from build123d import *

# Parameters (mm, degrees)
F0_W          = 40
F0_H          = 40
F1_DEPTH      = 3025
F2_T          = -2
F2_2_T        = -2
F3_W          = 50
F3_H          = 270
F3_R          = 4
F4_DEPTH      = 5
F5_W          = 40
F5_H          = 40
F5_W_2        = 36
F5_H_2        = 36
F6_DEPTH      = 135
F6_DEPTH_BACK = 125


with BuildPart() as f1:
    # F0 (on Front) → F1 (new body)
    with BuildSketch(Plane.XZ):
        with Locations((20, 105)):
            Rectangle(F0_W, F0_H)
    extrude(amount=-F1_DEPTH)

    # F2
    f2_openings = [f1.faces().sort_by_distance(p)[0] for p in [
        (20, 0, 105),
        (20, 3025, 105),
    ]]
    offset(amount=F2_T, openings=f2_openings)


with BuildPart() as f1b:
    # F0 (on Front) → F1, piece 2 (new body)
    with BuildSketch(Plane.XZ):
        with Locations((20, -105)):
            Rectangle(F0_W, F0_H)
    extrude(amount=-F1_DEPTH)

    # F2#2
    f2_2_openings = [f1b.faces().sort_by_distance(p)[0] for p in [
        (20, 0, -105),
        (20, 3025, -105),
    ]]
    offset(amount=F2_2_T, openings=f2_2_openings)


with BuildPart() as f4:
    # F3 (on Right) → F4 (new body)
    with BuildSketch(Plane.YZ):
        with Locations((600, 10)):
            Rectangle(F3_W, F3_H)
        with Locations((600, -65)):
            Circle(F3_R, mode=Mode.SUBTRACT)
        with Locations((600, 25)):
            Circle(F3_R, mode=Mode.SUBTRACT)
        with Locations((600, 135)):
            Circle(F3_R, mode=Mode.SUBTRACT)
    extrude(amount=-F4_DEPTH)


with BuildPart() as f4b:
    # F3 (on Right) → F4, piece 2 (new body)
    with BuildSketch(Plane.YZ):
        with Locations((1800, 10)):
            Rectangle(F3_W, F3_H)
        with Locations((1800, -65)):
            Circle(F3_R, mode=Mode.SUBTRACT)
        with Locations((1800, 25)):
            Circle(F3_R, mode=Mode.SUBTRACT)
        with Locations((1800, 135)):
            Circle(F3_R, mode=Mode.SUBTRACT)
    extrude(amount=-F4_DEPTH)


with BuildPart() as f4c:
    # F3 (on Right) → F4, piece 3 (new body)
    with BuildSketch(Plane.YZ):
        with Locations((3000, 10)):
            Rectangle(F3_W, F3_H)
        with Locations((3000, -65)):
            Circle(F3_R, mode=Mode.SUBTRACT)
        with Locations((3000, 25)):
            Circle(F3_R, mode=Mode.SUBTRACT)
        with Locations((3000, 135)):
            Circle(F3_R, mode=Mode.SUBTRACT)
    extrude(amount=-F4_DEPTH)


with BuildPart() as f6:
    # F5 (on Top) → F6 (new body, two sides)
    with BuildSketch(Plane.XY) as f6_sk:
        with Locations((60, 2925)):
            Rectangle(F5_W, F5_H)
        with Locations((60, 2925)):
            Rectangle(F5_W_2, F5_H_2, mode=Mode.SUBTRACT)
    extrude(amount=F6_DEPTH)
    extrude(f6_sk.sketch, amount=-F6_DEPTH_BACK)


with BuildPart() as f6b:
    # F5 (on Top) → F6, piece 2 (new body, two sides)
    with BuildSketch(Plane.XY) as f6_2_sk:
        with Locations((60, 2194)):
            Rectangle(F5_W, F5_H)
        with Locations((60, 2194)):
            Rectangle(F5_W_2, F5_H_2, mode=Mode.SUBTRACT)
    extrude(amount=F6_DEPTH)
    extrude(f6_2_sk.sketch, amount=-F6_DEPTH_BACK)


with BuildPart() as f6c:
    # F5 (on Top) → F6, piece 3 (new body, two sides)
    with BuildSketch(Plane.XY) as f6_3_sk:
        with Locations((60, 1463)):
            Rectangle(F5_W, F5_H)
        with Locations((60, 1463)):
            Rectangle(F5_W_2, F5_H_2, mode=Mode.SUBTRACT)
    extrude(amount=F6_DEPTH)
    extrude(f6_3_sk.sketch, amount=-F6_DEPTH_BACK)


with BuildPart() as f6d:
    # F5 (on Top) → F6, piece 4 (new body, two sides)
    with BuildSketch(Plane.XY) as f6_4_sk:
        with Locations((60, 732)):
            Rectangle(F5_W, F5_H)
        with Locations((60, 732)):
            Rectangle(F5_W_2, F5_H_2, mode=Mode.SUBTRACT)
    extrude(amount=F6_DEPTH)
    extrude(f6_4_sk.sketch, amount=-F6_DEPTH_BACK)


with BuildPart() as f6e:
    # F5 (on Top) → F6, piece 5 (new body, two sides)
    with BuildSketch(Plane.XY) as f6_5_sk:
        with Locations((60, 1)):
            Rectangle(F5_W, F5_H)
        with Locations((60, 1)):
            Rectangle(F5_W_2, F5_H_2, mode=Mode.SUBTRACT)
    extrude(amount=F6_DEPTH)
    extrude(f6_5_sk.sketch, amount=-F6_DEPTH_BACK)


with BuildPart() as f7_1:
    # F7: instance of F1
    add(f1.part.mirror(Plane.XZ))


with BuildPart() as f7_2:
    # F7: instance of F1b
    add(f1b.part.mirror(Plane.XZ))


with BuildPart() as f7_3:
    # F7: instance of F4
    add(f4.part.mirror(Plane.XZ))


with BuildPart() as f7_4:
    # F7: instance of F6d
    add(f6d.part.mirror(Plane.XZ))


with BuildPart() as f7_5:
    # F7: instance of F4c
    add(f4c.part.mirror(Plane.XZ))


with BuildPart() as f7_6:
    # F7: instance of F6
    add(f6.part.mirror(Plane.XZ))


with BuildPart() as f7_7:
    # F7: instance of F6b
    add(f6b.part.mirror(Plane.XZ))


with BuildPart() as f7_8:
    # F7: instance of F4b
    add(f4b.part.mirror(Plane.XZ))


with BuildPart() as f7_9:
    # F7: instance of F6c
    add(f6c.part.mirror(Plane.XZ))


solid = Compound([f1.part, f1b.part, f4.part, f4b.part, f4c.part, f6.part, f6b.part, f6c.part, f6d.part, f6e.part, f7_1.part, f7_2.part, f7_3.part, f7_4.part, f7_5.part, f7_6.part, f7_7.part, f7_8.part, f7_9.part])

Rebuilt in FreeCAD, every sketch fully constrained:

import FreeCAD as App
import Part
import Sketcher


def faces_at(feature, points):
    """Names of the faces that lie closest to the given points."""
    faces = feature.Shape.Faces
    near = lambda p: min(range(len(faces)), key=lambda i: faces[i].distToShape(Part.Vertex(*p))[0])
    return sorted({f"Face{near(p) + 1}" for p in points})


def add_polygon(sketch, points):
    """Adds a closed chain of lines whose ends are joined by coincident constraints."""
    first, n = sketch.GeometryCount, len(points)
    for a, b in zip(points, points[1:] + points[:1]):
        sketch.addGeometry(Part.LineSegment(App.Vector(*a, 0), App.Vector(*b, 0)), False)
    for i in range(n):
        sketch.addConstraint(Sketcher.Constraint("Coincident", first + i, 2, first + (i + 1) % n, 1))

doc = App.newDocument("Part")
params = doc.addObject("Spreadsheet::Sheet", "Params")
for row, (alias, value) in enumerate([
    ("sketch1_width", "40 mm"),
    ("pad1_length", "3025 mm"),
    ("thickness_wall", "2 mm"),
    ("sketch2_width", "40 mm"),
    ("pad2_length", "3025 mm"),
    ("thickness2_wall", "2 mm"),
    ("sketch3_diameter", "8 mm"),
    ("sketch3_width", "50 mm"),
    ("sketch3_height", "270 mm"),
    ("pad3_length", "5 mm"),
    ("sketch4_diameter", "8 mm"),
    ("sketch4_width", "50 mm"),
    ("sketch4_height", "270 mm"),
    ("pad4_length", "5 mm"),
    ("sketch5_diameter", "8 mm"),
    ("sketch5_width", "50 mm"),
    ("sketch5_height", "270 mm"),
    ("pad5_length", "5 mm"),
    ("sketch6_width", "40 mm"),
    ("sketch6_width2", "36 mm"),
    ("pad6_length", "135 mm"),
    ("pad6_length2", "125 mm"),
    ("sketch7_width", "40 mm"),
    ("sketch7_width2", "36 mm"),
    ("pad7_length", "135 mm"),
    ("pad7_length2", "125 mm"),
    ("sketch8_width", "40 mm"),
    ("sketch8_width2", "36 mm"),
    ("pad8_length", "135 mm"),
    ("pad8_length2", "125 mm"),
    ("sketch9_width", "40 mm"),
    ("sketch9_width2", "36 mm"),
    ("pad9_length", "135 mm"),
    ("pad9_length2", "125 mm"),
    ("sketch10_width", "40 mm"),
    ("sketch10_width2", "36 mm"),
    ("pad10_length", "135 mm"),
    ("pad10_length2", "125 mm"),
], start=1):
    params.set(f"A{row}", alias)
    params.set(f"B{row}", "=" + value)
    params.setAlias(f"B{row}", alias)

body = doc.addObject("PartDesign::Body", "Body")

sketch1 = doc.addObject("Sketcher::SketchObject", "Sketch")
body.addObject(sketch1)
sketch1.AttachmentSupport = (doc.XZ_Plane, [""])
sketch1.MapMode = "FlatFace"
add_polygon(sketch1, [(0, 125), (0, 85), (40, 85), (40, 125)])
sketch1.addConstraint(Sketcher.Constraint("Vertical", 0))
sketch1.addConstraint(Sketcher.Constraint("Horizontal", 1))
sketch1.addConstraint(Sketcher.Constraint("Vertical", 2))
sketch1.addConstraint(Sketcher.Constraint("Horizontal", 3))
sketch1.addConstraint(Sketcher.Constraint("PointOnObject", 0, 2, -2))
sketch1.addConstraint(Sketcher.Constraint("Equal", 3, 0))
sketch1.addConstraint(Sketcher.Constraint("DistanceX", 1, 1, 1, 2, 40.0))
sketch1.addConstraint(Sketcher.Constraint("DistanceY", -1, 1, 0, 2, 85.0))
sketch1.setExpression("Constraints[10]", "Params.sketch1_width")
pad1 = doc.addObject("PartDesign::Pad", "Pad")
body.addObject(pad1)
pad1.Profile = sketch1
pad1.setExpression("Length", "Params.pad1_length")
pad1.Reversed = True
doc.recompute()

thickness = doc.addObject("PartDesign::Thickness", "Thickness")
body.addObject(thickness)
thickness.Base = (pad1, faces_at(pad1, [(20, 0, 105), (20, 3025, 105)]))
thickness.setExpression("Value", "Params.thickness_wall")
thickness.Reversed = True
thickness.Join = "Arc"
body2 = doc.addObject("PartDesign::Body", "Body001")

sketch2 = doc.addObject("Sketcher::SketchObject", "Sketch001")
body2.addObject(sketch2)
sketch2.AttachmentSupport = (doc.getObject("XZ_Plane001"), [""])
sketch2.MapMode = "FlatFace"
add_polygon(sketch2, [(0, -85), (0, -125), (40, -125), (40, -85)])
sketch2.addConstraint(Sketcher.Constraint("Vertical", 0))
sketch2.addConstraint(Sketcher.Constraint("Horizontal", 1))
sketch2.addConstraint(Sketcher.Constraint("Vertical", 2))
sketch2.addConstraint(Sketcher.Constraint("Horizontal", 3))
sketch2.addConstraint(Sketcher.Constraint("PointOnObject", 0, 2, -2))
sketch2.addConstraint(Sketcher.Constraint("Equal", 3, 0))
sketch2.addConstraint(Sketcher.Constraint("DistanceX", 1, 1, 1, 2, 40.0))
sketch2.addConstraint(Sketcher.Constraint("DistanceY", 0, 2, -1, 1, 125.0))
sketch2.setExpression("Constraints[10]", "Params.sketch2_width")
pad2 = doc.addObject("PartDesign::Pad", "Pad001")
body2.addObject(pad2)
pad2.Profile = sketch2
pad2.setExpression("Length", "Params.pad2_length")
pad2.Reversed = True
doc.recompute()

thickness2 = doc.addObject("PartDesign::Thickness", "Thickness001")
body2.addObject(thickness2)
thickness2.Base = (pad2, faces_at(pad2, [(20, 0, -105), (20, 3025, -105)]))
thickness2.setExpression("Value", "Params.thickness2_wall")
thickness2.Reversed = True
thickness2.Join = "Arc"
body3 = doc.addObject("PartDesign::Body", "Body002")

sketch3 = doc.addObject("Sketcher::SketchObject", "Sketch002")
body3.addObject(sketch3)
sketch3.AttachmentSupport = (doc.getObject("YZ_Plane002"), [""])
sketch3.MapMode = "FlatFace"
add_polygon(sketch3, [(575, 145), (575, -125), (625, -125), (625, 145)])
sketch3.addGeometry(Part.Circle(App.Vector(600, -65, 0), App.Vector(0, 0, 1), 4), False)
sketch3.addGeometry(Part.Circle(App.Vector(600, 25, 0), App.Vector(0, 0, 1), 4), False)
sketch3.addGeometry(Part.Circle(App.Vector(600, 135, 0), App.Vector(0, 0, 1), 4), False)
sketch3.addConstraint(Sketcher.Constraint("Vertical", 0))
sketch3.addConstraint(Sketcher.Constraint("Horizontal", 1))
sketch3.addConstraint(Sketcher.Constraint("Vertical", 2))
sketch3.addConstraint(Sketcher.Constraint("Horizontal", 3))
sketch3.addConstraint(Sketcher.Constraint("Equal", 4, 5))
sketch3.addConstraint(Sketcher.Constraint("Equal", 5, 6))
sketch3.addConstraint(Sketcher.Constraint("Vertical", 4, 3, 5, 3))
sketch3.addConstraint(Sketcher.Constraint("Vertical", 5, 3, 6, 3))
sketch3.addConstraint(Sketcher.Constraint("Diameter", 4, 8.0))
sketch3.addConstraint(Sketcher.Constraint("DistanceX", 1, 1, 1, 2, 50.0))
sketch3.addConstraint(Sketcher.Constraint("DistanceY", 0, 2, 0, 1, 270.0))
sketch3.addConstraint(Sketcher.Constraint("DistanceX", -1, 1, 4, 3, 600.0))
sketch3.addConstraint(Sketcher.Constraint("DistanceY", 4, 3, -1, 1, 65.0))
sketch3.addConstraint(Sketcher.Constraint("DistanceY", -1, 1, 5, 3, 25.0))
sketch3.addConstraint(Sketcher.Constraint("DistanceY", -1, 1, 6, 3, 135.0))
sketch3.addConstraint(Sketcher.Constraint("DistanceX", -1, 1, 0, 2, 575.0))
sketch3.addConstraint(Sketcher.Constraint("DistanceY", 0, 2, -1, 1, 125.0))
sketch3.setExpression("Constraints[12]", "Params.sketch3_diameter")
sketch3.setExpression("Constraints[13]", "Params.sketch3_width")
sketch3.setExpression("Constraints[14]", "Params.sketch3_height")
pad3 = doc.addObject("PartDesign::Pad", "Pad002")
body3.addObject(pad3)
pad3.Profile = sketch3
pad3.setExpression("Length", "Params.pad3_length")
pad3.Reversed = True
body4 = doc.addObject("PartDesign::Body", "Body003")

sketch4 = doc.addObject("Sketcher::SketchObject", "Sketch003")
body4.addObject(sketch4)
sketch4.AttachmentSupport = (doc.getObject("YZ_Plane003"), [""])
sketch4.MapMode = "FlatFace"
add_polygon(sketch4, [(1775, 145), (1775, -125), (1825, -125), (1825, 145)])
sketch4.addGeometry(Part.Circle(App.Vector(1800, -65, 0), App.Vector(0, 0, 1), 4), False)
sketch4.addGeometry(Part.Circle(App.Vector(1800, 25, 0), App.Vector(0, 0, 1), 4), False)
sketch4.addGeometry(Part.Circle(App.Vector(1800, 135, 0), App.Vector(0, 0, 1), 4), False)
sketch4.addConstraint(Sketcher.Constraint("Vertical", 0))
sketch4.addConstraint(Sketcher.Constraint("Horizontal", 1))
sketch4.addConstraint(Sketcher.Constraint("Vertical", 2))
sketch4.addConstraint(Sketcher.Constraint("Horizontal", 3))
sketch4.addConstraint(Sketcher.Constraint("Equal", 4, 5))
sketch4.addConstraint(Sketcher.Constraint("Equal", 5, 6))
sketch4.addConstraint(Sketcher.Constraint("Vertical", 4, 3, 5, 3))
sketch4.addConstraint(Sketcher.Constraint("Vertical", 5, 3, 6, 3))
sketch4.addConstraint(Sketcher.Constraint("Diameter", 4, 8.0))
sketch4.addConstraint(Sketcher.Constraint("DistanceX", 1, 1, 1, 2, 50.0))
sketch4.addConstraint(Sketcher.Constraint("DistanceY", 0, 2, 0, 1, 270.0))
sketch4.addConstraint(Sketcher.Constraint("DistanceX", -1, 1, 4, 3, 1800.0))
sketch4.addConstraint(Sketcher.Constraint("DistanceY", 4, 3, -1, 1, 65.0))
sketch4.addConstraint(Sketcher.Constraint("DistanceY", -1, 1, 5, 3, 25.0))
sketch4.addConstraint(Sketcher.Constraint("DistanceY", -1, 1, 6, 3, 135.0))
sketch4.addConstraint(Sketcher.Constraint("DistanceX", -1, 1, 0, 2, 1775.0))
sketch4.addConstraint(Sketcher.Constraint("DistanceY", 0, 2, -1, 1, 125.0))
sketch4.setExpression("Constraints[12]", "Params.sketch4_diameter")
sketch4.setExpression("Constraints[13]", "Params.sketch4_width")
sketch4.setExpression("Constraints[14]", "Params.sketch4_height")
pad4 = doc.addObject("PartDesign::Pad", "Pad003")
body4.addObject(pad4)
pad4.Profile = sketch4
pad4.setExpression("Length", "Params.pad4_length")
pad4.Reversed = True
body5 = doc.addObject("PartDesign::Body", "Body004")

sketch5 = doc.addObject("Sketcher::SketchObject", "Sketch004")
body5.addObject(sketch5)
sketch5.AttachmentSupport = (doc.getObject("YZ_Plane004"), [""])
sketch5.MapMode = "FlatFace"
add_polygon(sketch5, [(2975, 145), (2975, -125), (3025, -125), (3025, 145)])
sketch5.addGeometry(Part.Circle(App.Vector(3000, -65, 0), App.Vector(0, 0, 1), 4), False)
sketch5.addGeometry(Part.Circle(App.Vector(3000, 25, 0), App.Vector(0, 0, 1), 4), False)
sketch5.addGeometry(Part.Circle(App.Vector(3000, 135, 0), App.Vector(0, 0, 1), 4), False)
sketch5.addConstraint(Sketcher.Constraint("Vertical", 0))
sketch5.addConstraint(Sketcher.Constraint("Horizontal", 1))
sketch5.addConstraint(Sketcher.Constraint("Vertical", 2))
sketch5.addConstraint(Sketcher.Constraint("Horizontal", 3))
sketch5.addConstraint(Sketcher.Constraint("Equal", 4, 5))
sketch5.addConstraint(Sketcher.Constraint("Equal", 5, 6))
sketch5.addConstraint(Sketcher.Constraint("Vertical", 4, 3, 5, 3))
sketch5.addConstraint(Sketcher.Constraint("Vertical", 5, 3, 6, 3))
sketch5.addConstraint(Sketcher.Constraint("Diameter", 4, 8.0))
sketch5.addConstraint(Sketcher.Constraint("DistanceX", 1, 1, 1, 2, 50.0))
sketch5.addConstraint(Sketcher.Constraint("DistanceY", 0, 2, 0, 1, 270.0))
sketch5.addConstraint(Sketcher.Constraint("DistanceX", -1, 1, 4, 3, 3000.0))
sketch5.addConstraint(Sketcher.Constraint("DistanceY", 4, 3, -1, 1, 65.0))
sketch5.addConstraint(Sketcher.Constraint("DistanceY", -1, 1, 5, 3, 25.0))
sketch5.addConstraint(Sketcher.Constraint("DistanceY", -1, 1, 6, 3, 135.0))
sketch5.addConstraint(Sketcher.Constraint("DistanceX", -1, 1, 0, 2, 2975.0))
sketch5.addConstraint(Sketcher.Constraint("DistanceY", 0, 2, -1, 1, 125.0))
sketch5.setExpression("Constraints[12]", "Params.sketch5_diameter")
sketch5.setExpression("Constraints[13]", "Params.sketch5_width")
sketch5.setExpression("Constraints[14]", "Params.sketch5_height")
pad5 = doc.addObject("PartDesign::Pad", "Pad004")
body5.addObject(pad5)
pad5.Profile = sketch5
pad5.setExpression("Length", "Params.pad5_length")
pad5.Reversed = True
body6 = doc.addObject("PartDesign::Body", "Body005")

sketch6 = doc.addObject("Sketcher::SketchObject", "Sketch005")
body6.addObject(sketch6)
sketch6.AttachmentSupport = (doc.getObject("XY_Plane005"), [""])
sketch6.MapMode = "FlatFace"
add_polygon(sketch6, [(40, 2945), (40, 2905), (80, 2905), (80, 2945)])
add_polygon(sketch6, [(78, 2907), (42, 2907), (42, 2943), (78, 2943)])
sketch6.addConstraint(Sketcher.Constraint("Vertical", 0))
sketch6.addConstraint(Sketcher.Constraint("Horizontal", 1))
sketch6.addConstraint(Sketcher.Constraint("Vertical", 2))
sketch6.addConstraint(Sketcher.Constraint("Horizontal", 3))
sketch6.addConstraint(Sketcher.Constraint("Horizontal", 4))
sketch6.addConstraint(Sketcher.Constraint("Vertical", 5))
sketch6.addConstraint(Sketcher.Constraint("Horizontal", 6))
sketch6.addConstraint(Sketcher.Constraint("Vertical", 7))
sketch6.addConstraint(Sketcher.Constraint("Equal", 3, 0))
sketch6.addConstraint(Sketcher.Constraint("Equal", 6, 5))
sketch6.addConstraint(Sketcher.Constraint("DistanceX", 1, 1, 1, 2, 40.0))
sketch6.addConstraint(Sketcher.Constraint("DistanceX", 4, 2, 4, 1, 36.0))
sketch6.addConstraint(Sketcher.Constraint("DistanceX", -1, 1, 0, 2, 40.0))
sketch6.addConstraint(Sketcher.Constraint("DistanceY", -1, 1, 0, 2, 2905.0))
sketch6.addConstraint(Sketcher.Constraint("DistanceX", -1, 1, 4, 2, 42.0))
sketch6.addConstraint(Sketcher.Constraint("DistanceY", -1, 1, 4, 2, 2907.0))
sketch6.setExpression("Constraints[18]", "Params.sketch6_width")
sketch6.setExpression("Constraints[19]", "Params.sketch6_width2")
pad6 = doc.addObject("PartDesign::Pad", "Pad005")
body6.addObject(pad6)
pad6.Profile = sketch6
pad6.Type = "TwoLengths"
pad6.setExpression("Length", "Params.pad6_length")
pad6.setExpression("Length2", "Params.pad6_length2")
body7 = doc.addObject("PartDesign::Body", "Body006")

sketch7 = doc.addObject("Sketcher::SketchObject", "Sketch006")
body7.addObject(sketch7)
sketch7.AttachmentSupport = (doc.getObject("XY_Plane006"), [""])
sketch7.MapMode = "FlatFace"
add_polygon(sketch7, [(40, 2214), (40, 2174), (80, 2174), (80, 2214)])
add_polygon(sketch7, [(78, 2176), (42, 2176), (42, 2212), (78, 2212)])
sketch7.addConstraint(Sketcher.Constraint("Vertical", 0))
sketch7.addConstraint(Sketcher.Constraint("Horizontal", 1))
sketch7.addConstraint(Sketcher.Constraint("Vertical", 2))
sketch7.addConstraint(Sketcher.Constraint("Horizontal", 3))
sketch7.addConstraint(Sketcher.Constraint("Horizontal", 4))
sketch7.addConstraint(Sketcher.Constraint("Vertical", 5))
sketch7.addConstraint(Sketcher.Constraint("Horizontal", 6))
sketch7.addConstraint(Sketcher.Constraint("Vertical", 7))
sketch7.addConstraint(Sketcher.Constraint("Equal", 3, 0))
sketch7.addConstraint(Sketcher.Constraint("Equal", 6, 5))
sketch7.addConstraint(Sketcher.Constraint("DistanceX", 1, 1, 1, 2, 40.0))
sketch7.addConstraint(Sketcher.Constraint("DistanceX", 4, 2, 4, 1, 36.0))
sketch7.addConstraint(Sketcher.Constraint("DistanceX", -1, 1, 0, 2, 40.0))
sketch7.addConstraint(Sketcher.Constraint("DistanceY", -1, 1, 0, 2, 2174.0))
sketch7.addConstraint(Sketcher.Constraint("DistanceX", -1, 1, 4, 2, 42.0))
sketch7.addConstraint(Sketcher.Constraint("DistanceY", -1, 1, 4, 2, 2176.0))
sketch7.setExpression("Constraints[18]", "Params.sketch7_width")
sketch7.setExpression("Constraints[19]", "Params.sketch7_width2")
pad7 = doc.addObject("PartDesign::Pad", "Pad006")
body7.addObject(pad7)
pad7.Profile = sketch7
pad7.Type = "TwoLengths"
pad7.setExpression("Length", "Params.pad7_length")
pad7.setExpression("Length2", "Params.pad7_length2")
body8 = doc.addObject("PartDesign::Body", "Body007")

sketch8 = doc.addObject("Sketcher::SketchObject", "Sketch007")
body8.addObject(sketch8)
sketch8.AttachmentSupport = (doc.getObject("XY_Plane007"), [""])
sketch8.MapMode = "FlatFace"
add_polygon(sketch8, [(40, 1483), (40, 1443), (80, 1443), (80, 1483)])
add_polygon(sketch8, [(78, 1445), (42, 1445), (42, 1481), (78, 1481)])
sketch8.addConstraint(Sketcher.Constraint("Vertical", 0))
sketch8.addConstraint(Sketcher.Constraint("Horizontal", 1))
sketch8.addConstraint(Sketcher.Constraint("Vertical", 2))
sketch8.addConstraint(Sketcher.Constraint("Horizontal", 3))
sketch8.addConstraint(Sketcher.Constraint("Horizontal", 4))
sketch8.addConstraint(Sketcher.Constraint("Vertical", 5))
sketch8.addConstraint(Sketcher.Constraint("Horizontal", 6))
sketch8.addConstraint(Sketcher.Constraint("Vertical", 7))
sketch8.addConstraint(Sketcher.Constraint("Equal", 3, 0))
sketch8.addConstraint(Sketcher.Constraint("Equal", 6, 5))
sketch8.addConstraint(Sketcher.Constraint("DistanceX", 1, 1, 1, 2, 40.0))
sketch8.addConstraint(Sketcher.Constraint("DistanceX", 4, 2, 4, 1, 36.0))
sketch8.addConstraint(Sketcher.Constraint("DistanceX", -1, 1, 0, 2, 40.0))
sketch8.addConstraint(Sketcher.Constraint("DistanceY", -1, 1, 0, 2, 1443.0))
sketch8.addConstraint(Sketcher.Constraint("DistanceX", -1, 1, 4, 2, 42.0))
sketch8.addConstraint(Sketcher.Constraint("DistanceY", -1, 1, 4, 2, 1445.0))
sketch8.setExpression("Constraints[18]", "Params.sketch8_width")
sketch8.setExpression("Constraints[19]", "Params.sketch8_width2")
pad8 = doc.addObject("PartDesign::Pad", "Pad007")
body8.addObject(pad8)
pad8.Profile = sketch8
pad8.Type = "TwoLengths"
pad8.setExpression("Length", "Params.pad8_length")
pad8.setExpression("Length2", "Params.pad8_length2")
body9 = doc.addObject("PartDesign::Body", "Body008")

sketch9 = doc.addObject("Sketcher::SketchObject", "Sketch008")
body9.addObject(sketch9)
sketch9.AttachmentSupport = (doc.getObject("XY_Plane008"), [""])
sketch9.MapMode = "FlatFace"
add_polygon(sketch9, [(40, 752), (40, 712), (80, 712), (80, 752)])
add_polygon(sketch9, [(78, 714), (42, 714), (42, 750), (78, 750)])
sketch9.addConstraint(Sketcher.Constraint("Vertical", 0))
sketch9.addConstraint(Sketcher.Constraint("Horizontal", 1))
sketch9.addConstraint(Sketcher.Constraint("Vertical", 2))
sketch9.addConstraint(Sketcher.Constraint("Horizontal", 3))
sketch9.addConstraint(Sketcher.Constraint("Horizontal", 4))
sketch9.addConstraint(Sketcher.Constraint("Vertical", 5))
sketch9.addConstraint(Sketcher.Constraint("Horizontal", 6))
sketch9.addConstraint(Sketcher.Constraint("Vertical", 7))
sketch9.addConstraint(Sketcher.Constraint("Equal", 3, 0))
sketch9.addConstraint(Sketcher.Constraint("Equal", 6, 5))
sketch9.addConstraint(Sketcher.Constraint("DistanceX", 1, 1, 1, 2, 40.0))
sketch9.addConstraint(Sketcher.Constraint("DistanceX", 4, 2, 4, 1, 36.0))
sketch9.addConstraint(Sketcher.Constraint("DistanceX", -1, 1, 0, 2, 40.0))
sketch9.addConstraint(Sketcher.Constraint("DistanceY", -1, 1, 0, 2, 712.0))
sketch9.addConstraint(Sketcher.Constraint("DistanceX", -1, 1, 4, 2, 42.0))
sketch9.addConstraint(Sketcher.Constraint("DistanceY", -1, 1, 4, 2, 714.0))
sketch9.setExpression("Constraints[18]", "Params.sketch9_width")
sketch9.setExpression("Constraints[19]", "Params.sketch9_width2")
pad9 = doc.addObject("PartDesign::Pad", "Pad008")
body9.addObject(pad9)
pad9.Profile = sketch9
pad9.Type = "TwoLengths"
pad9.setExpression("Length", "Params.pad9_length")
pad9.setExpression("Length2", "Params.pad9_length2")
body10 = doc.addObject("PartDesign::Body", "Body009")

sketch10 = doc.addObject("Sketcher::SketchObject", "Sketch009")
body10.addObject(sketch10)
sketch10.AttachmentSupport = (doc.getObject("XY_Plane009"), [""])
sketch10.MapMode = "FlatFace"
add_polygon(sketch10, [(40, 21), (40, -19), (80, -19), (80, 21)])
add_polygon(sketch10, [(78, -17), (42, -17), (42, 19), (78, 19)])
sketch10.addConstraint(Sketcher.Constraint("Vertical", 0))
sketch10.addConstraint(Sketcher.Constraint("Horizontal", 1))
sketch10.addConstraint(Sketcher.Constraint("Vertical", 2))
sketch10.addConstraint(Sketcher.Constraint("Horizontal", 3))
sketch10.addConstraint(Sketcher.Constraint("Horizontal", 4))
sketch10.addConstraint(Sketcher.Constraint("Vertical", 5))
sketch10.addConstraint(Sketcher.Constraint("Horizontal", 6))
sketch10.addConstraint(Sketcher.Constraint("Vertical", 7))
sketch10.addConstraint(Sketcher.Constraint("Equal", 3, 0))
sketch10.addConstraint(Sketcher.Constraint("Equal", 6, 5))
sketch10.addConstraint(Sketcher.Constraint("DistanceX", 1, 1, 1, 2, 40.0))
sketch10.addConstraint(Sketcher.Constraint("DistanceX", 4, 2, 4, 1, 36.0))
sketch10.addConstraint(Sketcher.Constraint("DistanceX", -1, 1, 0, 2, 40.0))
sketch10.addConstraint(Sketcher.Constraint("DistanceY", 0, 2, -1, 1, 19.0))
sketch10.addConstraint(Sketcher.Constraint("DistanceX", -1, 1, 4, 2, 42.0))
sketch10.addConstraint(Sketcher.Constraint("DistanceY", 4, 2, -1, 1, 17.0))
sketch10.setExpression("Constraints[18]", "Params.sketch10_width")
sketch10.setExpression("Constraints[19]", "Params.sketch10_width2")
pad10 = doc.addObject("PartDesign::Pad", "Pad009")
body10.addObject(pad10)
pad10.Profile = sketch10
pad10.Type = "TwoLengths"
pad10.setExpression("Length", "Params.pad10_length")
pad10.setExpression("Length2", "Params.pad10_length2")
body11 = doc.addObject("PartDesign::Body", "Body010")
doc.recompute()

mirroring = doc.addObject("Part::Mirroring", "Mirroring")
mirroring.Source = body
mirroring.Base = App.Vector(0, 0, 0)
mirroring.Normal = App.Vector(0, -1, 0)
body11.BaseFeature = mirroring
doc.recompute()
body12 = doc.addObject("PartDesign::Body", "Body011")
doc.recompute()

mirroring2 = doc.addObject("Part::Mirroring", "Mirroring001")
mirroring2.Source = body2
mirroring2.Base = App.Vector(0, 0, 0)
mirroring2.Normal = App.Vector(0, -1, 0)
body12.BaseFeature = mirroring2
doc.recompute()
body13 = doc.addObject("PartDesign::Body", "Body012")
doc.recompute()

mirroring3 = doc.addObject("Part::Mirroring", "Mirroring002")
mirroring3.Source = body3
mirroring3.Base = App.Vector(0, 0, 0)
mirroring3.Normal = App.Vector(0, -1, 0)
body13.BaseFeature = mirroring3
doc.recompute()
body14 = doc.addObject("PartDesign::Body", "Body013")
doc.recompute()

mirroring4 = doc.addObject("Part::Mirroring", "Mirroring003")
mirroring4.Source = body9
mirroring4.Base = App.Vector(0, 0, 0)
mirroring4.Normal = App.Vector(0, -1, 0)
body14.BaseFeature = mirroring4
doc.recompute()
body15 = doc.addObject("PartDesign::Body", "Body014")
doc.recompute()

mirroring5 = doc.addObject("Part::Mirroring", "Mirroring004")
mirroring5.Source = body5
mirroring5.Base = App.Vector(0, 0, 0)
mirroring5.Normal = App.Vector(0, -1, 0)
body15.BaseFeature = mirroring5
doc.recompute()
body16 = doc.addObject("PartDesign::Body", "Body015")
doc.recompute()

mirroring6 = doc.addObject("Part::Mirroring", "Mirroring005")
mirroring6.Source = body6
mirroring6.Base = App.Vector(0, 0, 0)
mirroring6.Normal = App.Vector(0, -1, 0)
body16.BaseFeature = mirroring6
doc.recompute()
body17 = doc.addObject("PartDesign::Body", "Body016")
doc.recompute()

mirroring7 = doc.addObject("Part::Mirroring", "Mirroring006")
mirroring7.Source = body7
mirroring7.Base = App.Vector(0, 0, 0)
mirroring7.Normal = App.Vector(0, -1, 0)
body17.BaseFeature = mirroring7
doc.recompute()
body18 = doc.addObject("PartDesign::Body", "Body017")
doc.recompute()

mirroring8 = doc.addObject("Part::Mirroring", "Mirroring007")
mirroring8.Source = body4
mirroring8.Base = App.Vector(0, 0, 0)
mirroring8.Normal = App.Vector(0, -1, 0)
body18.BaseFeature = mirroring8
doc.recompute()
body19 = doc.addObject("PartDesign::Body", "Body018")
doc.recompute()

mirroring9 = doc.addObject("Part::Mirroring", "Mirroring008")
mirroring9.Source = body8
mirroring9.Base = App.Vector(0, 0, 0)
mirroring9.Normal = App.Vector(0, -1, 0)
body19.BaseFeature = mirroring9
doc.recompute()

doc.recompute()
